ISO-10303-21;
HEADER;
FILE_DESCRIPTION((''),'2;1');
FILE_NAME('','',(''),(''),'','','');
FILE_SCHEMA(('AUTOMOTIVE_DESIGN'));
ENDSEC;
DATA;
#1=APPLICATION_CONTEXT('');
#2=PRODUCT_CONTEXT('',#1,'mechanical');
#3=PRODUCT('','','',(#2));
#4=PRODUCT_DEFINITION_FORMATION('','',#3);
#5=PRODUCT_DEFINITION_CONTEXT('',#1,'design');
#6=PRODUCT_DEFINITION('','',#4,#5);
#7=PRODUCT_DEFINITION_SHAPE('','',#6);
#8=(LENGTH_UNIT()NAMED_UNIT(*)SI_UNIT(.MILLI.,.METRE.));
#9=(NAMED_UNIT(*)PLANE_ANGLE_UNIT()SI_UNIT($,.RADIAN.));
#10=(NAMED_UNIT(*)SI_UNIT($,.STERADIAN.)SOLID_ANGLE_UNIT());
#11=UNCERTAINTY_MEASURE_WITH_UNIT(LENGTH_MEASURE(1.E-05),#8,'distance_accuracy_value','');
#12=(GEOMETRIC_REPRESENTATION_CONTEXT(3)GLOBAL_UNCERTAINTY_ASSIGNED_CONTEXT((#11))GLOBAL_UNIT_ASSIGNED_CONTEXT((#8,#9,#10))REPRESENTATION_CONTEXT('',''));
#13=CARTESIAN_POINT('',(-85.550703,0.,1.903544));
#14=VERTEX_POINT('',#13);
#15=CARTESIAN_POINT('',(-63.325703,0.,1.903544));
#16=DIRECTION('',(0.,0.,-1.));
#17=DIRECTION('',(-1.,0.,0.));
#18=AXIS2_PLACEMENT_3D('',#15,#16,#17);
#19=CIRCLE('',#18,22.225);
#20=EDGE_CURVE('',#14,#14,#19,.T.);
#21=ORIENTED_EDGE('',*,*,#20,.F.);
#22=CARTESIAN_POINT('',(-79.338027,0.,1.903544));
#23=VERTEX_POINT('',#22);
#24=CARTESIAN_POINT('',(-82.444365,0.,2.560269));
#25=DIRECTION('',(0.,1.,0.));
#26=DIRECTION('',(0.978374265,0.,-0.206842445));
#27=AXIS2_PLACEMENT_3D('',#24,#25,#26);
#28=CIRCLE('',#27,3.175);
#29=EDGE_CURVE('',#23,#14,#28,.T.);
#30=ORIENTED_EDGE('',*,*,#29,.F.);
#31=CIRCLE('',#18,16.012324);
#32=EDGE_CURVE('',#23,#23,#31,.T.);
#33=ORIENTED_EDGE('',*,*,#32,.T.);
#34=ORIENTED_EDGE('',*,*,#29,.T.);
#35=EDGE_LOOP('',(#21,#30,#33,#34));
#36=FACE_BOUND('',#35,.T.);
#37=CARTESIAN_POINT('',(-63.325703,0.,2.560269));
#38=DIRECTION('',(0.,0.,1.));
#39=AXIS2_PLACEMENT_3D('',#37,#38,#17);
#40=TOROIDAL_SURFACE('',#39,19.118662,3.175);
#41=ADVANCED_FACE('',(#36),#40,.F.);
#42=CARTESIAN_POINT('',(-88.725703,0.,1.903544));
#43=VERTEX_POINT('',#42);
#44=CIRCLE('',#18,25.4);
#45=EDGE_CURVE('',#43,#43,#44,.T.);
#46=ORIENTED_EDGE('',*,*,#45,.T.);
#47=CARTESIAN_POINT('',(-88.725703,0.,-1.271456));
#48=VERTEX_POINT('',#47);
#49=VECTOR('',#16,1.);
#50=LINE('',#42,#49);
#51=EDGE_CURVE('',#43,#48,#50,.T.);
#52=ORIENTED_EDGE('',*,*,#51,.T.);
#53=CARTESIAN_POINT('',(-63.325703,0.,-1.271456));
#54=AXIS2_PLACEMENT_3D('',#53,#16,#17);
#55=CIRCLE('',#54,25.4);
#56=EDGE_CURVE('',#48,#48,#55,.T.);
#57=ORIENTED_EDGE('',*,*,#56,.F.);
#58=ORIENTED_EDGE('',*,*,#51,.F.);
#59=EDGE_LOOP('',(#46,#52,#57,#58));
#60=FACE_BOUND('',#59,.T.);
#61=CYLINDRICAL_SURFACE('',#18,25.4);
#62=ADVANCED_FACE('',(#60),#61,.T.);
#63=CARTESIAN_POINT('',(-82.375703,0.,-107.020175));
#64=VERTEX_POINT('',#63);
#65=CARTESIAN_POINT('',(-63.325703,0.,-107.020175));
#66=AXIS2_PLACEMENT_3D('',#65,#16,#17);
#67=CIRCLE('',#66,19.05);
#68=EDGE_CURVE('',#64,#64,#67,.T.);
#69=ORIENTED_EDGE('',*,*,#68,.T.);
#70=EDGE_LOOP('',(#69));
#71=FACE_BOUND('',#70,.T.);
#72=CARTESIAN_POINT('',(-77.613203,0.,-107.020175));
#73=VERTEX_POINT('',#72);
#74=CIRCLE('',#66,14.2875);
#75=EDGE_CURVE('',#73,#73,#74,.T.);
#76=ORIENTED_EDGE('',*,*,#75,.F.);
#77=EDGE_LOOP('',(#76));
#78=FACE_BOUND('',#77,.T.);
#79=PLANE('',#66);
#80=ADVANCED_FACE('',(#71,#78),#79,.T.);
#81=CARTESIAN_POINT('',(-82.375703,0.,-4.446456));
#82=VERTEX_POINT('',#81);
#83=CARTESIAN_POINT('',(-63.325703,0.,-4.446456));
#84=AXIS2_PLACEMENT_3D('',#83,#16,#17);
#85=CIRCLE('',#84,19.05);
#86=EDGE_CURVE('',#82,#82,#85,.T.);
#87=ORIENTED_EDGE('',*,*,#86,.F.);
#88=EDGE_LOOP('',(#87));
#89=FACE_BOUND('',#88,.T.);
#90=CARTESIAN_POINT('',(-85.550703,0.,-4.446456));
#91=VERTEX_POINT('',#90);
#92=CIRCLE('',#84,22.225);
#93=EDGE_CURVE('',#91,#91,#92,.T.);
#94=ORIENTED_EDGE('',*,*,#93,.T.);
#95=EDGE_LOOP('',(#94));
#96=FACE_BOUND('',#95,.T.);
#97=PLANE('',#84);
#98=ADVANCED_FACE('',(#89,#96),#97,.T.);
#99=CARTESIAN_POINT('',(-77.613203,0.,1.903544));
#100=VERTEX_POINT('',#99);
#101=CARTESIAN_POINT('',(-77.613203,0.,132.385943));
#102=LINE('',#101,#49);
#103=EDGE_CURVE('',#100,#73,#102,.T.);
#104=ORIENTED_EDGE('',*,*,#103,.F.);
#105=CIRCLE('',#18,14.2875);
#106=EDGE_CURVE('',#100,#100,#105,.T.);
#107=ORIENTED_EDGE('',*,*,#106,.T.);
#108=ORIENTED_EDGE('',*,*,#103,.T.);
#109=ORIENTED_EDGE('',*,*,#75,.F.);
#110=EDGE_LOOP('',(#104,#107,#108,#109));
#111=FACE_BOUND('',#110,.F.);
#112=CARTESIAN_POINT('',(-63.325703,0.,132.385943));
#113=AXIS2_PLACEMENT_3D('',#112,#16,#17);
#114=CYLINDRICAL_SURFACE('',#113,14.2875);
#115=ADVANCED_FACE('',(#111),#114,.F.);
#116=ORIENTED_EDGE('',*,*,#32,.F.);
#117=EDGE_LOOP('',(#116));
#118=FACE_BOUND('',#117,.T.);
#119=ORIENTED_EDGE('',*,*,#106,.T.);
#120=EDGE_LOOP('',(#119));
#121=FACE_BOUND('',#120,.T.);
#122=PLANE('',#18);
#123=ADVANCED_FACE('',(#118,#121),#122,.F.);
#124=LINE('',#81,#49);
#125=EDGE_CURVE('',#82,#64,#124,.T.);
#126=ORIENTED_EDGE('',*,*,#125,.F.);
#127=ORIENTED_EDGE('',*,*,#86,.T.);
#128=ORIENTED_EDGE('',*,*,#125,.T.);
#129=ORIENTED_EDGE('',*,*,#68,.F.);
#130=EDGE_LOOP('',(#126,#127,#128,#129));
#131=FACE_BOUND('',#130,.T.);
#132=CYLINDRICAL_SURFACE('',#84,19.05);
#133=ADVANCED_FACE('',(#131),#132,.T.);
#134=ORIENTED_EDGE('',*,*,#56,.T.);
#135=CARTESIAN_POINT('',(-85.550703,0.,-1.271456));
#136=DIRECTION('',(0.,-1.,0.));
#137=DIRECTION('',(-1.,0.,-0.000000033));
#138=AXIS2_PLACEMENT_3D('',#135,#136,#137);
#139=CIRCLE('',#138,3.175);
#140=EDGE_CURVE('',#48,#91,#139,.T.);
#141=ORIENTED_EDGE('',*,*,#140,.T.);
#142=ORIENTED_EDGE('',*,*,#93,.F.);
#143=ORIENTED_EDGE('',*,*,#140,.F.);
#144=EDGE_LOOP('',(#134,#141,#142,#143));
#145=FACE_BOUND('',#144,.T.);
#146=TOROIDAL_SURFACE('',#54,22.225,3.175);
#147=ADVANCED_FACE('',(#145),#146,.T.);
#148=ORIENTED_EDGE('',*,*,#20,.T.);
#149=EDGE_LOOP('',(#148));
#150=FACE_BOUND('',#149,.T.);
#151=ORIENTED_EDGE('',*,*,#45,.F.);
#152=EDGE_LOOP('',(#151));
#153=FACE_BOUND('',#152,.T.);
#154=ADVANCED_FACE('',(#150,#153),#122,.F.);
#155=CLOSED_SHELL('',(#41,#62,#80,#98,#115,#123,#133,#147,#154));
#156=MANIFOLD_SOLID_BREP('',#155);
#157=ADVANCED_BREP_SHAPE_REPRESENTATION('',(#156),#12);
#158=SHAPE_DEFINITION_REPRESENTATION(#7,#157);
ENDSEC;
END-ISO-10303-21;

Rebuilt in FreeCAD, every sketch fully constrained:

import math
import FreeCAD as App
import Part
import Sketcher
from FreeCAD import Vector
Q = App.Units.Quantity

doc = App.newDocument("Part")
body = doc.addObject("PartDesign::Body", "Body")

sketch1 = body.newObject("Sketcher::SketchObject", "Sketch")
sketch1.AttachmentSupport = (doc.getObject("XZ_Plane"), [""])
sketch1.MapMode = "FlatFace"
sketch1.addGeometry([
    Part.LineSegment(Vector(-85.550703, 1.903544, 0), Vector(-88.725703, 1.903544, 0)),
    Part.LineSegment(Vector(-88.725703, 1.903544, 0), Vector(-88.725703, -1.271456, 0)),
    Part.ArcOfCircle(Part.Circle(Vector(-85.550703, -1.271456, 0), Vector(0, 0, 1), 3.175), math.radians(-179.999998), math.radians(-90.000002)),
    Part.LineSegment(Vector(-85.550703, -4.446456, 0), Vector(-82.375703, -4.446456, 0)),
    Part.LineSegment(Vector(-82.375703, -4.446456, 0), Vector(-82.375703, -107.020175, 0)),
    Part.LineSegment(Vector(-82.375703, -107.020175, 0), Vector(-63.325703, -107.020175, 0)),
    Part.LineSegment(Vector(-63.325703, -107.020175, 0), Vector(-63.325703, 1.903544, 0)),
    Part.LineSegment(Vector(-63.325703, 1.903544, 0), Vector(-79.338027, 1.903544, 0)),
    Part.ArcOfCircle(Part.Circle(Vector(-82.444365, 2.560269, 0), Vector(0, 0, 1), 3.175), math.radians(-168.062625), math.radians(-11.937375)),
], False)
sketch1.addGeometry(Part.LineSegment(Vector(-63.325703, 2.560269, 0), Vector(-63.325703, -107.020175, 0)), True)
sketch1.addConstraint([
    Sketcher.Constraint("Coincident", 0, 2, 1, 1),
    Sketcher.Constraint("Tangent", 1, 2, 2, 1),
    Sketcher.Constraint("Tangent", 2, 2, 3, 1),
    Sketcher.Constraint("Coincident", 3, 2, 4, 1),
    Sketcher.Constraint("Coincident", 4, 2, 5, 1),
    Sketcher.Constraint("Coincident", 5, 2, 6, 1),
    Sketcher.Constraint("Coincident", 6, 2, 7, 1),
    Sketcher.Constraint("Coincident", 7, 2, 8, 2),
    Sketcher.Constraint("Coincident", 8, 1, 0, 1),
    Sketcher.Constraint("Horizontal", 0),
    Sketcher.Constraint("Vertical", 1),
    Sketcher.Constraint("Horizontal", 3),
    Sketcher.Constraint("Vertical", 4),
    Sketcher.Constraint("Horizontal", 5),
    Sketcher.Constraint("Vertical", 6),
    Sketcher.Constraint("Horizontal", 7),
    Sketcher.Constraint("Vertical", 9),
    Sketcher.Constraint("Coincident", 9, 2, 5, 2),
    Sketcher.Constraint("Equal", 2, 8),
    Sketcher.Constraint("Horizontal", 0, 2, 6, 2),
    Sketcher.Constraint("Horizontal", 8, 3, 9, 1),
    Sketcher.Constraint("Vertical", 2, 2, 8, 1),
    Sketcher.Constraint("Equal", 0, 3),
    Sketcher.Constraint("Equal", 3, 1),
    Sketcher.Constraint("Radius", 2, Q("0.125 in")),
    Sketcher.Constraint("DistanceX", 1, 2, 5, 2, Q("1 in")),
    Sketcher.Constraint("DistanceY", 4, 2, 4, 1, Q("102.573719 mm")),
    Sketcher.Constraint("DistanceX", 7, 2, 7, 1, Q("16.012324 mm")),
    Sketcher.Constraint("DistanceY", -1, 1, 8, 3, Q("2.560269 mm")),
    Sketcher.Constraint("DistanceX", 2, 3, -1, 1, Q("85.550703 mm")),
])
revolution = body.newObject("PartDesign::Revolution", "Revolution")
revolution.Profile = sketch1
revolution.ReferenceAxis = (sketch1, ["Axis0"])
revolution.Angle = 360

sketch2 = body.newObject("Sketcher::SketchObject", "Sketch001")
sketch2.AttachmentSupport = (doc.getObject("XY_Plane"), [""])
sketch2.MapMode = "FlatFace"
sketch2.AttachmentOffset = App.Placement(Vector(0, 0, 1.903544), App.Rotation())
sketch2.addGeometry(Part.Circle(Vector(-63.325703, 0, 0), Vector(0, 0, 1), 14.2875), False)
sketch2.addConstraint([
    Sketcher.Constraint("PointOnObject", 0, 3, -1),
    Sketcher.Constraint("Diameter", 0, Q("1.125 in")),
    Sketcher.Constraint("DistanceX", 0, 3, -1, 1, Q("63.325703 mm")),
])
doc.recompute()
hole = body.newObject("PartDesign::Hole", "Hole")
hole.Profile = sketch2
hole.ThreadType = "None"
hole.Diameter = Q("1.125 in")
hole.DepthType = "ThroughAll"

doc.recompute()
